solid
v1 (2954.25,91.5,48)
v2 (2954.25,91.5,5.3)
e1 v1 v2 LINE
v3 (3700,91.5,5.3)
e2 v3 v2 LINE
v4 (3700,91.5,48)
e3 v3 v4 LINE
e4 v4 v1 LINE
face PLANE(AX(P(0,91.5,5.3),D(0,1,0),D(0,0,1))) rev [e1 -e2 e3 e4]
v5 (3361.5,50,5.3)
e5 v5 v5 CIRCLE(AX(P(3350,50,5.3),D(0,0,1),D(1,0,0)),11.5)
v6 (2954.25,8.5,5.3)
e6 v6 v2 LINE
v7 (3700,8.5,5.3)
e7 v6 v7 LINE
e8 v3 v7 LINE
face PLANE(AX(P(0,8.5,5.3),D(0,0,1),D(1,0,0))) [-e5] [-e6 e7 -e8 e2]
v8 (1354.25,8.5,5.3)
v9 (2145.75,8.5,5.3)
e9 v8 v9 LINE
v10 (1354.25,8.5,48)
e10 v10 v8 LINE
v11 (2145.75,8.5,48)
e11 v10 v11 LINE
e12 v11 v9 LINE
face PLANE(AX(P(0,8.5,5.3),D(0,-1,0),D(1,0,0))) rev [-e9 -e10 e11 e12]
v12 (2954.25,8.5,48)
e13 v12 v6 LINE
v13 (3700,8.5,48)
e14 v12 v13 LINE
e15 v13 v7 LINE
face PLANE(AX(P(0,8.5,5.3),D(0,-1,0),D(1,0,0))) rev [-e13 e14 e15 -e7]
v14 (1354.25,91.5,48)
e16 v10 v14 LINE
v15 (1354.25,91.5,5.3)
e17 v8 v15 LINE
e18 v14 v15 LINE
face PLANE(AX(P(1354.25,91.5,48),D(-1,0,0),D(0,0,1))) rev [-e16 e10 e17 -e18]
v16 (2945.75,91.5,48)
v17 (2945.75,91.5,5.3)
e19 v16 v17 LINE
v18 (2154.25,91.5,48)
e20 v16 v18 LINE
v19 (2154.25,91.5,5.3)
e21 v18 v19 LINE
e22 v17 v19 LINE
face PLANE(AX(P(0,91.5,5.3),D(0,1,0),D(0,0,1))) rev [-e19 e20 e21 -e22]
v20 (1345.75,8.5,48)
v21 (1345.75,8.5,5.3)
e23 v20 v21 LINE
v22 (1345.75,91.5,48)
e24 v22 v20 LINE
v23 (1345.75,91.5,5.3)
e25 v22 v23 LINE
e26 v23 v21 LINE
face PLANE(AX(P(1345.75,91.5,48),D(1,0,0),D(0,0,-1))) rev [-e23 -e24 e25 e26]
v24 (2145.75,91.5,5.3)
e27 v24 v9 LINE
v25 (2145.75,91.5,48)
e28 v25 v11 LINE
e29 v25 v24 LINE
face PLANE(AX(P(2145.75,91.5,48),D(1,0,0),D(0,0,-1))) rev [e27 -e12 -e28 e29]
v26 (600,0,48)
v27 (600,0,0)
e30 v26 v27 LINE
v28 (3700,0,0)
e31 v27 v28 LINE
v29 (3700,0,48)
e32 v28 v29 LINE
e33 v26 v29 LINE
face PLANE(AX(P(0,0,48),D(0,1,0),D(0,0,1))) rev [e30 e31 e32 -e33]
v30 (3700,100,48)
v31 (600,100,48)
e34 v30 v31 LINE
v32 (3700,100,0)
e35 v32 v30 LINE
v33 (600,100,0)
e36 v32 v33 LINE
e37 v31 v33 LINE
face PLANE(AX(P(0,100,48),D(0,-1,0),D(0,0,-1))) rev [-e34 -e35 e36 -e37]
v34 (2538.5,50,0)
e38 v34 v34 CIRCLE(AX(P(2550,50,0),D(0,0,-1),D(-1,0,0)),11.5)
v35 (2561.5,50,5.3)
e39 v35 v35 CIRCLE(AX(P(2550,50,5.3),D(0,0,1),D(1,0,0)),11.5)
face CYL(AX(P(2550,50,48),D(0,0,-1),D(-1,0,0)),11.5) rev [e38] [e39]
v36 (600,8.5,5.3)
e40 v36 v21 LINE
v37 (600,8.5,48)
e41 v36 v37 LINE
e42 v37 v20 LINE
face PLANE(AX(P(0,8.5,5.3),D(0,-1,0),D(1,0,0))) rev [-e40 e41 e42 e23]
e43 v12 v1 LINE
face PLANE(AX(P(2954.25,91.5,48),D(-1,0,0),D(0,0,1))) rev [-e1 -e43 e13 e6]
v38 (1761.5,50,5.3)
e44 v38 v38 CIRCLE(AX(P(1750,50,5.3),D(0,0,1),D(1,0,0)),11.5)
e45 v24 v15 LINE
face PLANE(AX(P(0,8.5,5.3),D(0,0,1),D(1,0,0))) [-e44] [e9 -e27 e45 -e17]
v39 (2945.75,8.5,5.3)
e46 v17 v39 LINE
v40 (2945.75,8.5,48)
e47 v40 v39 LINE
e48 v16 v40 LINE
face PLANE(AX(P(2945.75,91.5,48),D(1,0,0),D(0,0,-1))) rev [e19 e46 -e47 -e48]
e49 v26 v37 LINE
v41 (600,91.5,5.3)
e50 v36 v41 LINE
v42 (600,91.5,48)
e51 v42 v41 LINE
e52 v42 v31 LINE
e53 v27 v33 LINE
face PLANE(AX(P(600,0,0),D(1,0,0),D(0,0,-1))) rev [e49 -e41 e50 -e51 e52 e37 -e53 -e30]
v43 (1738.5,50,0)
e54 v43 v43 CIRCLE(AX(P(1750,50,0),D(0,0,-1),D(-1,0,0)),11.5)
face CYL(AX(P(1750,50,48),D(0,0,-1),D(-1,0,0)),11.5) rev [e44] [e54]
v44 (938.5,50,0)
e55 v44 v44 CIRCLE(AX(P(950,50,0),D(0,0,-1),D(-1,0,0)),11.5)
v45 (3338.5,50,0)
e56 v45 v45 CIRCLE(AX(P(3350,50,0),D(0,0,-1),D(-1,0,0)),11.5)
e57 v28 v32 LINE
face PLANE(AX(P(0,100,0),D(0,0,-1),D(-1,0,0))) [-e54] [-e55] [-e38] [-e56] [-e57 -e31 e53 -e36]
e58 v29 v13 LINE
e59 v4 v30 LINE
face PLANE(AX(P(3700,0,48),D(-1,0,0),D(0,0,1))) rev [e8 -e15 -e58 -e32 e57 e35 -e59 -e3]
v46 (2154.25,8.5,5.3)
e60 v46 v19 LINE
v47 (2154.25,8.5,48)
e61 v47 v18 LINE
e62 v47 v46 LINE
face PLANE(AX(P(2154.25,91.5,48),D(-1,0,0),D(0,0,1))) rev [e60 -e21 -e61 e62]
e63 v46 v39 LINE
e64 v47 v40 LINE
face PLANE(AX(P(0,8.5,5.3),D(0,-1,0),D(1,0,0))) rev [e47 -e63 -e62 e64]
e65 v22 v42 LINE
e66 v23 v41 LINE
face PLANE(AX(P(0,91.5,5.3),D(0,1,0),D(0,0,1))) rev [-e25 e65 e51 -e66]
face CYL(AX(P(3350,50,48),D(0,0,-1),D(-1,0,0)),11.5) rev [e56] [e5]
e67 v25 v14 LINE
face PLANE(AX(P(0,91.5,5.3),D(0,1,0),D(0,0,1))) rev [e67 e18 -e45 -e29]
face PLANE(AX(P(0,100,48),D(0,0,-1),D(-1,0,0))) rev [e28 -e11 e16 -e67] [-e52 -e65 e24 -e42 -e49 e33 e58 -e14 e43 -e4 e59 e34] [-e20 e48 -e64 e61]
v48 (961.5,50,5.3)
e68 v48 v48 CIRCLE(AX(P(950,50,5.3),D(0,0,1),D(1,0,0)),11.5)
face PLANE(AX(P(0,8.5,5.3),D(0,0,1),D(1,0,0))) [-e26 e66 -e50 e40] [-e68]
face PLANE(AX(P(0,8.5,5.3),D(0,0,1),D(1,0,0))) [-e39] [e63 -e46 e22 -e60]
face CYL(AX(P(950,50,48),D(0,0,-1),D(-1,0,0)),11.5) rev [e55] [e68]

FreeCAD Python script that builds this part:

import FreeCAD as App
import Part
import Sketcher

V = App.Vector
Q = App.Units.Quantity

doc = App.newDocument("Part")
body = doc.addObject("PartDesign::Body", "Body")

# Sketch on XY plane
sketch1 = doc.addObject("Sketcher::SketchObject", "Sketch")
body.addObject(sketch1)
sketch1.AttachmentSupport = (doc.XY_Plane, [""])
sketch1.MapMode = "FlatFace"
sketch1.addGeometry([
    Part.LineSegment(V(0, 100, 0), V(0, 0, 0)),
    Part.LineSegment(V(0, 0, 0), V(4300, 0, 0)),
    Part.LineSegment(V(4300, 0, 0), V(4300, 100, 0)),
    Part.LineSegment(V(4300, 100, 0), V(0, 100, 0)),
], False)
sketch1.addConstraint([
    Sketcher.Constraint("Coincident", 0, 2, 1, 1),
    Sketcher.Constraint("Coincident", 1, 2, 2, 1),
    Sketcher.Constraint("Coincident", 2, 2, 3, 1),
    Sketcher.Constraint("Coincident", 3, 2, 0, 1),
    Sketcher.Constraint("Vertical", 0),
    Sketcher.Constraint("Horizontal", 1),
    Sketcher.Constraint("Vertical", 2),
    Sketcher.Constraint("Horizontal", 3),
    Sketcher.Constraint("Coincident", 0, 2, -1, 1),
    Sketcher.Constraint("DistanceX", 1, 1, 1, 2, Q("4300 mm")),
    Sketcher.Constraint("DistanceY", 0, 2, 0, 1, Q("100 mm")),
])
pad1 = doc.addObject("PartDesign::Pad", "Pad")
body.addObject(pad1)
pad1.Profile = sketch1
pad1.Length = 48

# Sketch on XY plane
sketch2 = doc.addObject("Sketcher::SketchObject", "Sketch001")
body.addObject(sketch2)
sketch2.AttachmentSupport = (doc.XY_Plane, [""])
sketch2.MapMode = "FlatFace"
sketch2.AttachmentOffset = App.Placement(V(0, 0, 48), App.Rotation())
sketch2.addGeometry([
    Part.LineSegment(V(0, 92, 0), V(0, 8, 0)),
    Part.LineSegment(V(0, 8, 0), V(4300, 8, 0)),
    Part.LineSegment(V(4300, 8, 0), V(4300, 92, 0)),
    Part.LineSegment(V(4300, 92, 0), V(0, 92, 0)),
], False)
sketch2.addConstraint([
    Sketcher.Constraint("Coincident", 0, 2, 1, 1),
    Sketcher.Constraint("Coincident", 1, 2, 2, 1),
    Sketcher.Constraint("Coincident", 2, 2, 3, 1),
    Sketcher.Constraint("Coincident", 3, 2, 0, 1),
    Sketcher.Constraint("Vertical", 0),
    Sketcher.Constraint("Horizontal", 1),
    Sketcher.Constraint("Vertical", 2),
    Sketcher.Constraint("Horizontal", 3),
    Sketcher.Constraint("PointOnObject", 0, 2, -2),
    Sketcher.Constraint("DistanceX", 1, 1, 1, 2, Q("4300 mm")),
    Sketcher.Constraint("DistanceY", 0, 2, 0, 1, Q("83 mm")),
    Sketcher.Constraint("DistanceY", -1, 1, 0, 2, Q("8.5 mm")),
])
pocket1 = doc.addObject("PartDesign::Pocket", "Pocket")
body.addObject(pocket1)
pocket1.Profile = sketch2
pocket1.Length = 42.7

# Sketch on XY plane
sketch3 = doc.addObject("Sketcher::SketchObject", "Sketch002")
body.addObject(sketch3)
sketch3.AttachmentSupport = (doc.XY_Plane, [""])
sketch3.MapMode = "FlatFace"
sketch3.AttachmentOffset = App.Placement(V(0, 0, 5.3), App.Rotation())
sketch3.addGeometry([
    Part.LineSegment(V(546, 92, 0), V(546, 8, 0)),
    Part.LineSegment(V(546, 8, 0), V(554, 8, 0)),
    Part.LineSegment(V(554, 8, 0), V(554, 92, 0)),
    Part.LineSegment(V(554, 92, 0), V(546, 92, 0)),
], False)
sketch3.addConstraint([
    Sketcher.Constraint("Coincident", 0, 2, 1, 1),
    Sketcher.Constraint("Coincident", 1, 2, 2, 1),
    Sketcher.Constraint("Coincident", 2, 2, 3, 1),
    Sketcher.Constraint("Coincident", 3, 2, 0, 1),
    Sketcher.Constraint("Vertical", 0),
    Sketcher.Constraint("Horizontal", 1),
    Sketcher.Constraint("Vertical", 2),
    Sketcher.Constraint("Horizontal", 3),
    Sketcher.Constraint("DistanceY", 0, 2, 0, 1, Q("83 mm")),
    Sketcher.Constraint("DistanceX", 1, 1, 1, 2, Q("8.5 mm")),
    Sketcher.Constraint("DistanceY", -1, 1, 0, 2, Q("8.5 mm")),
    Sketcher.Constraint("DistanceX", -1, 1, 0, 2, Q("545.75 mm")),
])
pad2 = doc.addObject("PartDesign::Pad", "Pad001")
body.addObject(pad2)
pad2.Profile = sketch3
pad2.Length = 42.7
doc.recompute()

linearpattern = doc.addObject("PartDesign::LinearPattern", "LinearPattern")
body.addObject(linearpattern)
linearpattern.Originals = [pad2]
linearpattern.Direction = (doc.X_Axis, [""])
linearpattern.Mode = "offset"
linearpattern.Offset = 800
linearpattern.Occurrences = 5
body.Tip = linearpattern

# Sketch on XY plane
sketch4 = doc.addObject("Sketcher::SketchObject", "Sketch003")
body.addObject(sketch4)
sketch4.AttachmentSupport = (doc.XY_Plane, [""])
sketch4.MapMode = "FlatFace"
sketch4.addGeometry(Part.Circle(V(4150, 50, 0), V(0, 0, 1), 12), False)
sketch4.addConstraint([
    Sketcher.Constraint("Diameter", 0, Q("23 mm")),
    Sketcher.Constraint("DistanceX", -1, 1, 0, 3, Q("4150 mm")),
    Sketcher.Constraint("DistanceY", -1, 1, 0, 3, Q("50 mm")),
])
pocket2 = doc.addObject("PartDesign::Pocket", "Pocket001")
body.addObject(pocket2)
pocket2.Profile = sketch4
pocket2.Type = "ThroughAll"
pocket2.Reversed = True
doc.recompute()

linearpattern2 = doc.addObject("PartDesign::LinearPattern", "LinearPattern001")
body.addObject(linearpattern2)
linearpattern2.Originals = [pocket2]
linearpattern2.Direction = (doc.X_Axis, [""])
linearpattern2.Mode = "offset"
linearpattern2.Offset = 800
linearpattern2.Occurrences = 6
linearpattern2.Reversed = True
body.Tip = linearpattern2

# Sketch on XZ plane
sketch5 = doc.addObject("Sketcher::SketchObject", "Sketch004")
body.addObject(sketch5)
sketch5.AttachmentSupport = (doc.XZ_Plane, [""])
sketch5.MapMode = "FlatFace"
sketch5.AttachmentOffset = App.Placement(V(0, 0, -100), App.Rotation())
sketch5.addGeometry([
    Part.LineSegment(V(600, 48, 0), V(600, 0, 0)),  # 0
    Part.LineSegment(V(600, 0, 0), V(0, 0, 0)),  # 1
    Part.LineSegment(V(0, 0, 0), V(0, 48, 0)),  # 2
    Part.LineSegment(V(0, 48, 0), V(600, 48, 0)),  # 3
    Part.LineSegment(V(4300, 48, 0), V(4300, 0, 0)),  # 4
    Part.LineSegment(V(4300, 0, 0), V(3700, 0, 0)),  # 5
    Part.LineSegment(V(3700, 0, 0), V(3700, 48, 0)),  # 6
    Part.LineSegment(V(3700, 48, 0), V(4300, 48, 0)),  # 7
], False)
sketch5.addConstraint([
    Sketcher.Constraint("Coincident", 0, 2, 1, 1),
    Sketcher.Constraint("Coincident", 1, 2, 2, 1),
    Sketcher.Constraint("Coincident", 2, 2, 3, 1),
    Sketcher.Constraint("Coincident", 3, 2, 0, 1),
    Sketcher.Constraint("Coincident", 4, 2, 5, 1),
    Sketcher.Constraint("Coincident", 5, 2, 6, 1),
    Sketcher.Constraint("Coincident", 6, 2, 7, 1),
    Sketcher.Constraint("Coincident", 7, 2, 4, 1),
    Sketcher.Constraint("Vertical", 0),
    Sketcher.Constraint("Horizontal", 1),
    Sketcher.Constraint("Vertical", 2),
    Sketcher.Constraint("Horizontal", 3),
    Sketcher.Constraint("Vertical", 4),
    Sketcher.Constraint("Horizontal", 5),
    Sketcher.Constraint("Vertical", 6),
    Sketcher.Constraint("Horizontal", 7),
    Sketcher.Constraint("Coincident", 1, 2, -1, 1),
    Sketcher.Constraint("PointOnObject", 4, 2, -1),
    Sketcher.Constraint("Horizontal", 3, 2, 6, 2),
    Sketcher.Constraint("Equal", 3, 5),
    Sketcher.Constraint("DistanceX", 1, 2, 1, 1, Q("600 mm")),
    Sketcher.Constraint("DistanceY", 0, 2, 0, 1, Q("48 mm")),
    Sketcher.Constraint("DistanceX", -1, 1, 4, 2, Q("4300 mm")),
])
pocket3 = doc.addObject("PartDesign::Pocket", "Pocket002")
body.addObject(pocket3)
pocket3.Profile = sketch5
pocket3.Length = 100
pocket3.Reversed = True

doc.recompute()
